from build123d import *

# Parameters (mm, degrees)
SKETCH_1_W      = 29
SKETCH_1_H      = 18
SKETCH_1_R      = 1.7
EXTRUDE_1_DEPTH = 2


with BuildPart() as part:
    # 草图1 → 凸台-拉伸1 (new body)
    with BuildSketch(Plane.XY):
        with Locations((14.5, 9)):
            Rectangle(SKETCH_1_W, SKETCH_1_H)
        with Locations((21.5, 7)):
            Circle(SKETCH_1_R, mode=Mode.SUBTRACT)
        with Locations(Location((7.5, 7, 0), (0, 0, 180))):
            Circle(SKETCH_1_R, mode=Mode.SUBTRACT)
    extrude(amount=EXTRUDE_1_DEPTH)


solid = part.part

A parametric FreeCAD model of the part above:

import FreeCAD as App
import Part
import Sketcher

doc = App.newDocument("Part")
body = doc.addObject("PartDesign::Body", "Body")

# Sketch on XY plane
sketch1 = doc.addObject("Sketcher::SketchObject", "Sketch")
body.addObject(sketch1)
sketch1.AttachmentSupport = (doc.XY_Plane, [""])
sketch1.MapMode = "FlatFace"
sketch1.addGeometry([
    Part.LineSegment(App.Vector(0, 18, 0), App.Vector(0, 0, 0)),  # 0
    Part.LineSegment(App.Vector(0, 0, 0), App.Vector(29, 0, 0)),  # 1
    Part.LineSegment(App.Vector(29, 0, 0), App.Vector(29, 18, 0)),  # 2
    Part.LineSegment(App.Vector(29, 18, 0), App.Vector(0, 18, 0)),  # 3
    Part.Circle(App.Vector(7.5, 7, 0), App.Vector(0, 0, 1), 1.7),  # 4
    Part.Circle(App.Vector(21.5, 7, 0), App.Vector(0, 0, 1), 1.7),  # 5
], False)
sketch1.addConstraint([
    Sketcher.Constraint("Coincident", 0, 2, 1, 1),
    Sketcher.Constraint("Coincident", 1, 2, 2, 1),
    Sketcher.Constraint("Coincident", 2, 2, 3, 1),
    Sketcher.Constraint("Coincident", 3, 2, 0, 1),
    Sketcher.Constraint("Vertical", 0),
    Sketcher.Constraint("Horizontal", 1),
    Sketcher.Constraint("Vertical", 2),
    Sketcher.Constraint("Horizontal", 3),
    Sketcher.Constraint("Coincident", 0, 2, -1, 1),
    Sketcher.Constraint("Equal", 4, 5),
    Sketcher.Constraint("Horizontal", 4, 3, 5, 3),
    Sketcher.Constraint("Diameter", 4, 3.4),
    Sketcher.Constraint("DistanceX", 1, 1, 1, 2, 29.0),
    Sketcher.Constraint("DistanceY", 0, 2, 0, 1, 18.0),
    Sketcher.Constraint("DistanceY", -1, 1, 4, 3, 7.0),
    Sketcher.Constraint("DistanceX", 4, 3, 5, 3, 14.0),
    Sketcher.Constraint("DistanceX", -1, 1, 4, 3, 7.5),
])
pad1 = doc.addObject("PartDesign::Pad", "Pad")
body.addObject(pad1)
pad1.Profile = sketch1
pad1.Length = 2

doc.recompute()
